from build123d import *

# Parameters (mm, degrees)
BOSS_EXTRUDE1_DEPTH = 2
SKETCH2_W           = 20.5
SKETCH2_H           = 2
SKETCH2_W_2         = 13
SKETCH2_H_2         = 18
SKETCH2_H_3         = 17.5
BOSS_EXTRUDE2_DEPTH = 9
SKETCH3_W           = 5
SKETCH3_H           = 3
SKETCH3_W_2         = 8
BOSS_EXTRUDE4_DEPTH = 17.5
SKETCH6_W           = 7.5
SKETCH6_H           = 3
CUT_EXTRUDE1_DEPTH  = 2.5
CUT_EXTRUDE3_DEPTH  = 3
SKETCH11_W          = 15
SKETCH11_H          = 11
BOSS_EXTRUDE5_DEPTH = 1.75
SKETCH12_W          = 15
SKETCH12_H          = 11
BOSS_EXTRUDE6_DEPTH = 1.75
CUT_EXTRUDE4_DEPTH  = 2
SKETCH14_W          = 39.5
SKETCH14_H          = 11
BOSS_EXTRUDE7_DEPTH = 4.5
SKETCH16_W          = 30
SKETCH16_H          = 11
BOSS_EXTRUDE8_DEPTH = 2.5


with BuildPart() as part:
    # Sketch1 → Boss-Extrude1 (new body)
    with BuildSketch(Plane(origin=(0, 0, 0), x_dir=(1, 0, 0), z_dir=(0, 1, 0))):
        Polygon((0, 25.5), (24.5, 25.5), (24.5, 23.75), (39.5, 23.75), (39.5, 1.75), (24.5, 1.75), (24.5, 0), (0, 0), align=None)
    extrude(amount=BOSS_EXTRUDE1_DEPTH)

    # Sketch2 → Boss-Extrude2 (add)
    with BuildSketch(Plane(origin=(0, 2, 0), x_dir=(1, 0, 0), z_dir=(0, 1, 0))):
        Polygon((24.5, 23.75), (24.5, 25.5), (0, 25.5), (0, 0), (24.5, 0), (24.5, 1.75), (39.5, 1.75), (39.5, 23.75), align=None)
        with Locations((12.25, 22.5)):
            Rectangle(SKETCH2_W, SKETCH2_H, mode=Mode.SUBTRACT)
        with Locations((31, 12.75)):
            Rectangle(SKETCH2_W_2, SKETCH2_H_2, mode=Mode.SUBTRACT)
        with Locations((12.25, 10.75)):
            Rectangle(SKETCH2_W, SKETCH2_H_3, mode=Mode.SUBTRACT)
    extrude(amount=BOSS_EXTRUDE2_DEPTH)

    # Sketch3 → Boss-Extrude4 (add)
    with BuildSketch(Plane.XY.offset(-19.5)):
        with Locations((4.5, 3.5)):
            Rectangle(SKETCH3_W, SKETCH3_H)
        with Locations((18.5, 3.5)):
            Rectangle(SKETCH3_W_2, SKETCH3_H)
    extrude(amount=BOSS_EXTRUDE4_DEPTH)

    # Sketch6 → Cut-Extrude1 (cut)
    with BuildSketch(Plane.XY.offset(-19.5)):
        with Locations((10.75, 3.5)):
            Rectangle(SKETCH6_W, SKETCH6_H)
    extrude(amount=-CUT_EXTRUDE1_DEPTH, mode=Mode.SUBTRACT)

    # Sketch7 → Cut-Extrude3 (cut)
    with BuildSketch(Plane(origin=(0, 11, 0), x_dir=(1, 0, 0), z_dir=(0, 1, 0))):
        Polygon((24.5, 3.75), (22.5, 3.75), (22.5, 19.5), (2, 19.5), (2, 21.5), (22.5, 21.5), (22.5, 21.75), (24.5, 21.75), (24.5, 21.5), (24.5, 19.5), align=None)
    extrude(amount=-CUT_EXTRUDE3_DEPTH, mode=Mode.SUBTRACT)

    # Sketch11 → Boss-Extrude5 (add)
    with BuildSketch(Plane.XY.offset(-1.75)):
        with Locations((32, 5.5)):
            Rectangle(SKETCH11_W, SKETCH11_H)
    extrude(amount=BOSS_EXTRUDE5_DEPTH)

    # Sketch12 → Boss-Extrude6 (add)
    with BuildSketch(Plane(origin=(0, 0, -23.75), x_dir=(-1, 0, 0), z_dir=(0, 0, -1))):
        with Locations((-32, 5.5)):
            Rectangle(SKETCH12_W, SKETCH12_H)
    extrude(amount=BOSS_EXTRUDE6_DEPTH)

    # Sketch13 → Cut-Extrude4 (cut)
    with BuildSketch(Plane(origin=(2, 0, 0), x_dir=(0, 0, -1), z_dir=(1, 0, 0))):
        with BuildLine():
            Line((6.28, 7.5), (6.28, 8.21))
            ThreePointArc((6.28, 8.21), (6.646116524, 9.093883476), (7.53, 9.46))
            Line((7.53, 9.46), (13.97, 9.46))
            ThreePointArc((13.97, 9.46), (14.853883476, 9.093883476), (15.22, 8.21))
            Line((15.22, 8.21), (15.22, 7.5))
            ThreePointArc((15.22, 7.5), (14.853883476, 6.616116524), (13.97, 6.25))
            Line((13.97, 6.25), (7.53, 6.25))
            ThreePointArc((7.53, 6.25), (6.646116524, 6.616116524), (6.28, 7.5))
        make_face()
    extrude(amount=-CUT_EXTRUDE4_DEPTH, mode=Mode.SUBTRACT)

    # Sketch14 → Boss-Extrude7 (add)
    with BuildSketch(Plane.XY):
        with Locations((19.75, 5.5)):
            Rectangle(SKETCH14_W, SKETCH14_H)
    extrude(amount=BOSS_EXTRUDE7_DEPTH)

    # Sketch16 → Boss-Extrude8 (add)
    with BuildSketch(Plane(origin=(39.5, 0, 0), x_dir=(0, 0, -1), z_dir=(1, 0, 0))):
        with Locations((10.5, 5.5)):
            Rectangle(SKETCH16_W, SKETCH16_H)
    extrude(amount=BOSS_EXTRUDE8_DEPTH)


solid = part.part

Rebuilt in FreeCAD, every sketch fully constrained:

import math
import FreeCAD as App
import Part
import Sketcher

V = App.Vector
Q = App.Units.Quantity


def add_polygon(sketch, points):
    """Adds a closed chain of lines whose ends are joined by coincident constraints."""
    first, n = sketch.GeometryCount, len(points)
    for a, b in zip(points, points[1:] + points[:1]):
        sketch.addGeometry(Part.LineSegment(App.Vector(*a, 0), App.Vector(*b, 0)), False)
    for i in range(n):
        sketch.addConstraint(Sketcher.Constraint("Coincident", first + i, 2, first + (i + 1) % n, 1))

doc = App.newDocument("Part")
params = doc.addObject("Spreadsheet::Sheet", "Params")
for row, (alias, value) in enumerate([
    ("sketch1_width", "15 mm"),
    ("sketch1_height", "22 mm"),
    ("sketch1_width2", "24.5 mm"),
    ("sketch1_height2", "25.5 mm"),
    ("pad1_length", "2 mm"),
    ("sketch2_width", "15 mm"),
    ("sketch2_width2", "13 mm"),
    ("sketch2_height", "22 mm"),
    ("sketch2_height2", "2 mm"),
    ("sketch2_height3", "18 mm"),
    ("pad2_length", "9 mm"),
    ("sketch3_width", "5 mm"),
    ("sketch3_width2", "8 mm"),
    ("sketch3_height", "3 mm"),
    ("pad3_length", "17.5 mm"),
    ("sketch4_height", "3 mm"),
    ("sketch4_width", "7.5 mm"),
    ("pocket1_length", "2.5 mm"),
    ("sketch5_width", "2 mm"),
    ("sketch5_height", "18 mm"),
    ("sketch5_width2", "20.5 mm"),
    ("sketch5_height2", "0.25 mm"),
    ("pocket2_length", "3 mm"),
    ("sketch6_width", "15 mm"),
    ("sketch6_height", "11 mm"),
    ("pad4_length", "1.75 mm"),
    ("sketch7_width", "15 mm"),
    ("sketch7_height", "11 mm"),
    ("pad5_length", "1.75 mm"),
    ("sketch8_radius", "1.25 mm"),
    ("sketch8_width", "0.71 mm"),
    ("sketch8_height", "6.44 mm"),
    ("pocket3_length", "2 mm"),
    ("sketch9_height", "11 mm"),
    ("sketch9_width", "39.5 mm"),
    ("pad6_length", "4.5 mm"),
    ("sketch10_width", "11 mm"),
    ("sketch10_height", "30 mm"),
    ("pad7_length", "2.5 mm"),
], start=1):
    params.set(f"A{row}", alias)
    params.set(f"B{row}", "=" + value)
    params.setAlias(f"B{row}", alias)

body = doc.addObject("PartDesign::Body", "Body")

sketch1 = body.newObject("Sketcher::SketchObject", "Sketch")
sketch1.AttachmentSupport = (doc.getObject("XZ_Plane"), [""])
sketch1.MapMode = "FlatFace"
add_polygon(sketch1, [(24.5, -25.5), (0, -25.5), (0, 0), (24.5, 0), (24.5, -1.75), (39.5, -1.75), (39.5, -23.75), (24.5, -23.75)])
sketch1.addConstraint([
    Sketcher.Constraint("Horizontal", 0),
    Sketcher.Constraint("Vertical", 1),
    Sketcher.Constraint("Horizontal", 2),
    Sketcher.Constraint("Vertical", 3),
    Sketcher.Constraint("Horizontal", 4),
    Sketcher.Constraint("Vertical", 5),
    Sketcher.Constraint("Horizontal", 6),
    Sketcher.Constraint("Vertical", 7),
    Sketcher.Constraint("Coincident", 1, 2, -1, 1),
    Sketcher.Constraint("Vertical", 3, 2, 6, 2),
    Sketcher.Constraint("Equal", 3, 7),
    Sketcher.Constraint("DistanceX", 4, 1, 4, 2, Q("15 mm")),
    Sketcher.Constraint("DistanceY", 5, 2, 5, 1, Q("22 mm")),
    Sketcher.Constraint("DistanceX", 0, 2, 0, 1, Q("24.5 mm")),
    Sketcher.Constraint("DistanceY", 1, 1, 1, 2, Q("25.5 mm")),
])
sketch1.setExpression("Constraints[19]", "Params.sketch1_width")
sketch1.setExpression("Constraints[20]", "Params.sketch1_height")
sketch1.setExpression("Constraints[21]", "Params.sketch1_width2")
sketch1.setExpression("Constraints[22]", "Params.sketch1_height2")
pad1 = body.newObject("PartDesign::Pad", "Pad")
pad1.Profile = sketch1
pad1.setExpression("Length", "Params.pad1_length")
pad1.Reversed = True

sketch2 = body.newObject("Sketcher::SketchObject", "Sketch001")
sketch2.AttachmentSupport = (doc.getObject("XZ_Plane"), [""])
sketch2.MapMode = "FlatFace"
sketch2.AttachmentOffset = App.Placement(V(0, 0, -2), App.Rotation())
add_polygon(sketch2, [(24.5, -23.75), (24.5, -25.5), (0, -25.5), (0, 0), (24.5, 0), (24.5, -1.75), (39.5, -1.75), (39.5, -23.75)])
add_polygon(sketch2, [(22.5, -2), (2, -2), (2, -19.5), (22.5, -19.5)])
add_polygon(sketch2, [(22.5, -21.5), (2, -21.5), (2, -23.5), (22.5, -23.5)])
add_polygon(sketch2, [(37.5, -3.75), (24.5, -3.75), (24.5, -21.75), (37.5, -21.75)])
sketch2.addConstraint([
    Sketcher.Constraint("Vertical", 0),
    Sketcher.Constraint("Horizontal", 1),
    Sketcher.Constraint("Vertical", 2),
    Sketcher.Constraint("Horizontal", 3),
    Sketcher.Constraint("Vertical", 4),
    Sketcher.Constraint("Horizontal", 5),
    Sketcher.Constraint("Vertical", 6),
    Sketcher.Constraint("Horizontal", 7),
    Sketcher.Constraint("Horizontal", 8),
    Sketcher.Constraint("Vertical", 9),
    Sketcher.Constraint("Horizontal", 10),
    Sketcher.Constraint("Vertical", 11),
    Sketcher.Constraint("Horizontal", 12),
    Sketcher.Constraint("Vertical", 13),
    Sketcher.Constraint("Horizontal", 14),
    Sketcher.Constraint("Vertical", 15),
    Sketcher.Constraint("Horizontal", 16),
    Sketcher.Constraint("Vertical", 17),
    Sketcher.Constraint("Horizontal", 18),
    Sketcher.Constraint("Vertical", 19),
    Sketcher.Constraint("Coincident", 2, 2, -1, 1),
    Sketcher.Constraint("Vertical", 0, 2, 3, 2),
    Sketcher.Constraint("Vertical", 9, 2, 12, 2),
    Sketcher.Constraint("Vertical", 11, 2, 14, 2),
    Sketcher.Constraint("Vertical", 7, 2, 16, 2),
    Sketcher.Constraint("Equal", 0, 4),
    Sketcher.Constraint("DistanceX", 5, 1, 5, 2, Q("15 mm")),
    Sketcher.Constraint("DistanceX", 16, 2, 16, 1, Q("13 mm")),
    Sketcher.Constraint("DistanceY", 6, 2, 6, 1, Q("22 mm")),
    Sketcher.Constraint("DistanceY", 13, 2, 13, 1, Q("2 mm")),
    Sketcher.Constraint("DistanceY", 17, 2, 17, 1, Q("18 mm")),
    Sketcher.Constraint("DistanceX", 1, 2, 1, 1, Q("24.5 mm")),
    Sketcher.Constraint("DistanceX", 8, 2, 8, 1, Q("20.5 mm")),
    Sketcher.Constraint("DistanceY", 2, 1, 2, 2, Q("25.5 mm")),
    Sketcher.Constraint("DistanceY", 9, 2, 9, 1, Q("17.5 mm")),
    Sketcher.Constraint("DistanceX", -1, 1, 8, 2, Q("2 mm")),
    Sketcher.Constraint("DistanceY", 8, 2, -1, 1, Q("2 mm")),
    Sketcher.Constraint("DistanceY", 12, 2, 9, 2, Q("2 mm")),
    Sketcher.Constraint("DistanceY", 16, 2, 4, 2, Q("2 mm")),
])
sketch2.setExpression("Constraints[46]", "Params.sketch2_width")
sketch2.setExpression("Constraints[47]", "Params.sketch2_width2")
sketch2.setExpression("Constraints[48]", "Params.sketch2_height")
sketch2.setExpression("Constraints[49]", "Params.sketch2_height2")
sketch2.setExpression("Constraints[50]", "Params.sketch2_height3")
pad2 = body.newObject("PartDesign::Pad", "Pad001")
pad2.Profile = sketch2
pad2.setExpression("Length", "Params.pad2_length")
pad2.Reversed = True

sketch3 = body.newObject("Sketcher::SketchObject", "Sketch002")
sketch3.AttachmentSupport = (doc.getObject("XY_Plane"), [""])
sketch3.MapMode = "FlatFace"
sketch3.AttachmentOffset = App.Placement(V(0, 0, -19.5), App.Rotation())
add_polygon(sketch3, [(2, 5), (2, 2), (7, 2), (7, 5)])
add_polygon(sketch3, [(14.5, 5), (14.5, 2), (22.5, 2), (22.5, 5)])
sketch3.addConstraint([
    Sketcher.Constraint("Vertical", 0),
    Sketcher.Constraint("Horizontal", 1),
    Sketcher.Constraint("Vertical", 2),
    Sketcher.Constraint("Horizontal", 3),
    Sketcher.Constraint("Vertical", 4),
    Sketcher.Constraint("Horizontal", 5),
    Sketcher.Constraint("Vertical", 6),
    Sketcher.Constraint("Horizontal", 7),
    Sketcher.Constraint("Horizontal", 1, 2, 4, 2),
    Sketcher.Constraint("Horizontal", 3, 2, 6, 2),
    Sketcher.Constraint("DistanceX", 1, 1, 1, 2, Q("5 mm")),
    Sketcher.Constraint("DistanceX", 5, 1, 5, 2, Q("8 mm")),
    Sketcher.Constraint("DistanceY", 0, 2, 0, 1, Q("3 mm")),
    Sketcher.Constraint("DistanceX", -1, 1, 0, 2, Q("2 mm")),
    Sketcher.Constraint("DistanceY", -1, 1, 0, 2, Q("2 mm")),
    Sketcher.Constraint("DistanceX", -1, 1, 4, 2, Q("14.5 mm")),
])
sketch3.setExpression("Constraints[18]", "Params.sketch3_width")
sketch3.setExpression("Constraints[19]", "Params.sketch3_width2")
sketch3.setExpression("Constraints[20]", "Params.sketch3_height")
pad3 = body.newObject("PartDesign::Pad", "Pad002")
pad3.Profile = sketch3
pad3.setExpression("Length", "Params.pad3_length")

sketch4 = body.newObject("Sketcher::SketchObject", "Sketch003")
sketch4.AttachmentSupport = (doc.getObject("XY_Plane"), [""])
sketch4.MapMode = "FlatFace"
sketch4.AttachmentOffset = App.Placement(V(0, 0, -19.5), App.Rotation())
add_polygon(sketch4, [(7, 5), (7, 2), (14.5, 2), (14.5, 5)])
sketch4.addConstraint([
    Sketcher.Constraint("Vertical", 0),
    Sketcher.Constraint("Horizontal", 1),
    Sketcher.Constraint("Vertical", 2),
    Sketcher.Constraint("Horizontal", 3),
    Sketcher.Constraint("DistanceY", 0, 2, 0, 1, Q("3 mm")),
    Sketcher.Constraint("DistanceX", 1, 1, 1, 2, Q("7.5 mm")),
    Sketcher.Constraint("DistanceX", -1, 1, 0, 2, Q("7 mm")),
    Sketcher.Constraint("DistanceY", -1, 1, 0, 2, Q("2 mm")),
])
sketch4.setExpression("Constraints[8]", "Params.sketch4_height")
sketch4.setExpression("Constraints[9]", "Params.sketch4_width")
pocket1 = body.newObject("PartDesign::Pocket", "Pocket")
pocket1.Profile = sketch4
pocket1.setExpression("Length", "Params.pocket1_length")

sketch5 = body.newObject("Sketcher::SketchObject", "Sketch004")
sketch5.AttachmentSupport = (doc.getObject("XZ_Plane"), [""])
sketch5.MapMode = "FlatFace"
sketch5.AttachmentOffset = App.Placement(V(0, 0, -11), App.Rotation())
add_polygon(sketch5, [(22.5, -3.75), (24.5, -3.75), (24.5, -21.75), (22.5, -21.75), (22.5, -21.5), (2, -21.5), (2, -19.5), (22.5, -19.5)])
sketch5.addConstraint([
    Sketcher.Constraint("Horizontal", 0),
    Sketcher.Constraint("Vertical", 1),
    Sketcher.Constraint("Horizontal", 2),
    Sketcher.Constraint("Vertical", 3),
    Sketcher.Constraint("Horizontal", 4),
    Sketcher.Constraint("Vertical", 5),
    Sketcher.Constraint("Horizontal", 6),
    Sketcher.Constraint("Vertical", 7),
    Sketcher.Constraint("Vertical", 3, 2, 6, 2),
    Sketcher.Constraint("Equal", 2, 5),
    Sketcher.Constraint("DistanceX", 0, 1, 0, 2, Q("2 mm")),
    Sketcher.Constraint("DistanceY", 1, 2, 1, 1, Q("18 mm")),
    Sketcher.Constraint("DistanceX", 4, 2, 4, 1, Q("20.5 mm")),
    Sketcher.Constraint("DistanceX", -1, 1, 4, 2, Q("2 mm")),
    Sketcher.Constraint("DistanceY", 3, 1, 3, 2, Q("0.25 mm")),
    Sketcher.Constraint("DistanceY", 3, 2, -1, 1, Q("21.5 mm")),
])
sketch5.setExpression("Constraints[18]", "Params.sketch5_width")
sketch5.setExpression("Constraints[19]", "Params.sketch5_height")
sketch5.setExpression("Constraints[20]", "Params.sketch5_width2")
sketch5.setExpression("Constraints[22]", "Params.sketch5_height2")
pocket2 = body.newObject("PartDesign::Pocket", "Pocket001")
pocket2.Profile = sketch5
pocket2.setExpression("Length", "Params.pocket2_length")
pocket2.Reversed = True

sketch6 = body.newObject("Sketcher::SketchObject", "Sketch005")
sketch6.AttachmentSupport = (doc.getObject("XY_Plane"), [""])
sketch6.MapMode = "FlatFace"
sketch6.AttachmentOffset = App.Placement(V(0, 0, -1.75), App.Rotation())
add_polygon(sketch6, [(24.5, 11), (24.5, 0), (39.5, 0), (39.5, 11)])
sketch6.addConstraint([
    Sketcher.Constraint("Vertical", 0),
    Sketcher.Constraint("Horizontal", 1),
    Sketcher.Constraint("Vertical", 2),
    Sketcher.Constraint("Horizontal", 3),
    Sketcher.Constraint("PointOnObject", 0, 2, -1),
    Sketcher.Constraint("DistanceX", 1, 1, 1, 2, Q("15 mm")),
    Sketcher.Constraint("DistanceY", 0, 2, 0, 1, Q("11 mm")),
    Sketcher.Constraint("DistanceX", -1, 1, 0, 2, Q("24.5 mm")),
])
sketch6.setExpression("Constraints[9]", "Params.sketch6_width")
sketch6.setExpression("Constraints[10]", "Params.sketch6_height")
pad4 = body.newObject("PartDesign::Pad", "Pad003")
pad4.Profile = sketch6
pad4.setExpression("Length", "Params.pad4_length")

sketch7 = body.newObject("Sketcher::SketchObject", "Sketch006")
sketch7.AttachmentSupport = (doc.getObject("XY_Plane"), [""])
sketch7.MapMode = "FlatFace"
sketch7.AttachmentOffset = App.Placement(V(0, 0, -23.75), App.Rotation())
add_polygon(sketch7, [(39.5, 11), (39.5, 0), (24.5, 0), (24.5, 11)])
sketch7.addConstraint([
    Sketcher.Constraint("Vertical", 0),
    Sketcher.Constraint("Horizontal", 1),
    Sketcher.Constraint("Vertical", 2),
    Sketcher.Constraint("Horizontal", 3),
    Sketcher.Constraint("PointOnObject", 0, 2, -1),
    Sketcher.Constraint("DistanceX", 1, 2, 1, 1, Q("15 mm")),
    Sketcher.Constraint("DistanceY", 0, 2, 0, 1, Q("11 mm")),
    Sketcher.Constraint("DistanceX", -1, 1, 0, 2, Q("39.5 mm")),
])
sketch7.setExpression("Constraints[9]", "Params.sketch7_width")
sketch7.setExpression("Constraints[10]", "Params.sketch7_height")
pad5 = body.newObject("PartDesign::Pad", "Pad004")
pad5.Profile = sketch7
pad5.setExpression("Length", "Params.pad5_length")
pad5.Reversed = True

sketch8 = body.newObject("Sketcher::SketchObject", "Sketch007")
sketch8.AttachmentSupport = (doc.getObject("YZ_Plane"), [""])
sketch8.MapMode = "FlatFace"
sketch8.AttachmentOffset = App.Placement(V(0, 0, 2), App.Rotation())
sketch8.addGeometry([
    Part.LineSegment(V(8.21, -6.28, 0), V(7.5, -6.28, 0)),
    Part.ArcOfCircle(Part.Circle(V(7.5, -7.53, 0), V(0, 0, 1), 1.25), math.radians(90), math.radians(180)),
    Part.LineSegment(V(6.25, -7.53, 0), V(6.25, -13.97, 0)),
    Part.ArcOfCircle(Part.Circle(V(7.5, -13.97, 0), V(0, 0, 1), 1.25), math.radians(-180), math.radians(-90)),
    Part.LineSegment(V(7.5, -15.22, 0), V(8.21, -15.22, 0)),
    Part.ArcOfCircle(Part.Circle(V(8.21, -13.97, 0), V(0, 0, 1), 1.25), math.radians(-90), math.radians(0)),
    Part.LineSegment(V(9.46, -13.97, 0), V(9.46, -7.53, 0)),
    Part.ArcOfCircle(Part.Circle(V(8.21, -7.53, 0), V(0, 0, 1), 1.25), math.radians(0), math.radians(90)),
], False)
sketch8.addConstraint([
    Sketcher.Constraint("Tangent", 0, 2, 1, 1),
    Sketcher.Constraint("Tangent", 1, 2, 2, 1),
    Sketcher.Constraint("Tangent", 2, 2, 3, 1),
    Sketcher.Constraint("Tangent", 3, 2, 4, 1),
    Sketcher.Constraint("Tangent", 4, 2, 5, 1),
    Sketcher.Constraint("Tangent", 5, 2, 6, 1),
    Sketcher.Constraint("Tangent", 6, 2, 7, 1),
    Sketcher.Constraint("Tangent", 7, 2, 0, 1),
    Sketcher.Constraint("Horizontal", 0),
    Sketcher.Constraint("Vertical", 2),
    Sketcher.Constraint("Horizontal", 4),
    Sketcher.Constraint("Vertical", 6),
    Sketcher.Constraint("Equal", 1, 3),
    Sketcher.Constraint("Equal", 3, 5),
    Sketcher.Constraint("Equal", 5, 7),
    Sketcher.Constraint("Radius", 1, Q("1.25 mm")),
    Sketcher.Constraint("DistanceX", 0, 2, 0, 1, Q("0.71 mm")),
    Sketcher.Constraint("DistanceY", 2, 2, 2, 1, Q("6.44 mm")),
    Sketcher.Constraint("DistanceX", -1, 1, 1, 3, Q("7.5 mm")),
    Sketcher.Constraint("DistanceY", 1, 3, -1, 1, Q("7.53 mm")),
])
sketch8.setExpression("Constraints[15]", "Params.sketch8_radius")
sketch8.setExpression("Constraints[16]", "Params.sketch8_width")
sketch8.setExpression("Constraints[17]", "Params.sketch8_height")
pocket3 = body.newObject("PartDesign::Pocket", "Pocket002")
pocket3.Profile = sketch8
pocket3.setExpression("Length", "Params.pocket3_length")

sketch9 = body.newObject("Sketcher::SketchObject", "Sketch008")
sketch9.AttachmentSupport = (doc.getObject("XY_Plane"), [""])
sketch9.MapMode = "FlatFace"
add_polygon(sketch9, [(0, 11), (0, 0), (39.5, 0), (39.5, 11)])
sketch9.addConstraint([
    Sketcher.Constraint("Vertical", 0),
    Sketcher.Constraint("Horizontal", 1),
    Sketcher.Constraint("Vertical", 2),
    Sketcher.Constraint("Horizontal", 3),
    Sketcher.Constraint("Coincident", 0, 2, -1, 1),
    Sketcher.Constraint("DistanceY", 0, 2, 0, 1, Q("11 mm")),
    Sketcher.Constraint("DistanceX", 1, 1, 1, 2, Q("39.5 mm")),
])
sketch9.setExpression("Constraints[9]", "Params.sketch9_height")
sketch9.setExpression("Constraints[10]", "Params.sketch9_width")
pad6 = body.newObject("PartDesign::Pad", "Pad005")
pad6.Profile = sketch9
pad6.setExpression("Length", "Params.pad6_length")

sketch10 = body.newObject("Sketcher::SketchObject", "Sketch009")
sketch10.AttachmentSupport = (doc.getObject("YZ_Plane"), [""])
sketch10.MapMode = "FlatFace"
sketch10.AttachmentOffset = App.Placement(V(0, 0, 39.5), App.Rotation())
add_polygon(sketch10, [(11, 4.5), (0, 4.5), (0, -25.5), (11, -25.5)])
sketch10.addConstraint([
    Sketcher.Constraint("Horizontal", 0),
    Sketcher.Constraint("Vertical", 1),
    Sketcher.Constraint("Horizontal", 2),
    Sketcher.Constraint("Vertical", 3),
    Sketcher.Constraint("PointOnObject", 0, 2, -2),
    Sketcher.Constraint("DistanceX", 0, 2, 0, 1, Q("11 mm")),
    Sketcher.Constraint("DistanceY", 1, 2, 1, 1, Q("30 mm")),
    Sketcher.Constraint("DistanceY", -1, 1, 0, 2, Q("4.5 mm")),
])
sketch10.setExpression("Constraints[9]", "Params.sketch10_width")
sketch10.setExpression("Constraints[10]", "Params.sketch10_height")
pad7 = body.newObject("PartDesign::Pad", "Pad006")
pad7.Profile = sketch10
pad7.setExpression("Length", "Params.pad7_length")

doc.recompute()
